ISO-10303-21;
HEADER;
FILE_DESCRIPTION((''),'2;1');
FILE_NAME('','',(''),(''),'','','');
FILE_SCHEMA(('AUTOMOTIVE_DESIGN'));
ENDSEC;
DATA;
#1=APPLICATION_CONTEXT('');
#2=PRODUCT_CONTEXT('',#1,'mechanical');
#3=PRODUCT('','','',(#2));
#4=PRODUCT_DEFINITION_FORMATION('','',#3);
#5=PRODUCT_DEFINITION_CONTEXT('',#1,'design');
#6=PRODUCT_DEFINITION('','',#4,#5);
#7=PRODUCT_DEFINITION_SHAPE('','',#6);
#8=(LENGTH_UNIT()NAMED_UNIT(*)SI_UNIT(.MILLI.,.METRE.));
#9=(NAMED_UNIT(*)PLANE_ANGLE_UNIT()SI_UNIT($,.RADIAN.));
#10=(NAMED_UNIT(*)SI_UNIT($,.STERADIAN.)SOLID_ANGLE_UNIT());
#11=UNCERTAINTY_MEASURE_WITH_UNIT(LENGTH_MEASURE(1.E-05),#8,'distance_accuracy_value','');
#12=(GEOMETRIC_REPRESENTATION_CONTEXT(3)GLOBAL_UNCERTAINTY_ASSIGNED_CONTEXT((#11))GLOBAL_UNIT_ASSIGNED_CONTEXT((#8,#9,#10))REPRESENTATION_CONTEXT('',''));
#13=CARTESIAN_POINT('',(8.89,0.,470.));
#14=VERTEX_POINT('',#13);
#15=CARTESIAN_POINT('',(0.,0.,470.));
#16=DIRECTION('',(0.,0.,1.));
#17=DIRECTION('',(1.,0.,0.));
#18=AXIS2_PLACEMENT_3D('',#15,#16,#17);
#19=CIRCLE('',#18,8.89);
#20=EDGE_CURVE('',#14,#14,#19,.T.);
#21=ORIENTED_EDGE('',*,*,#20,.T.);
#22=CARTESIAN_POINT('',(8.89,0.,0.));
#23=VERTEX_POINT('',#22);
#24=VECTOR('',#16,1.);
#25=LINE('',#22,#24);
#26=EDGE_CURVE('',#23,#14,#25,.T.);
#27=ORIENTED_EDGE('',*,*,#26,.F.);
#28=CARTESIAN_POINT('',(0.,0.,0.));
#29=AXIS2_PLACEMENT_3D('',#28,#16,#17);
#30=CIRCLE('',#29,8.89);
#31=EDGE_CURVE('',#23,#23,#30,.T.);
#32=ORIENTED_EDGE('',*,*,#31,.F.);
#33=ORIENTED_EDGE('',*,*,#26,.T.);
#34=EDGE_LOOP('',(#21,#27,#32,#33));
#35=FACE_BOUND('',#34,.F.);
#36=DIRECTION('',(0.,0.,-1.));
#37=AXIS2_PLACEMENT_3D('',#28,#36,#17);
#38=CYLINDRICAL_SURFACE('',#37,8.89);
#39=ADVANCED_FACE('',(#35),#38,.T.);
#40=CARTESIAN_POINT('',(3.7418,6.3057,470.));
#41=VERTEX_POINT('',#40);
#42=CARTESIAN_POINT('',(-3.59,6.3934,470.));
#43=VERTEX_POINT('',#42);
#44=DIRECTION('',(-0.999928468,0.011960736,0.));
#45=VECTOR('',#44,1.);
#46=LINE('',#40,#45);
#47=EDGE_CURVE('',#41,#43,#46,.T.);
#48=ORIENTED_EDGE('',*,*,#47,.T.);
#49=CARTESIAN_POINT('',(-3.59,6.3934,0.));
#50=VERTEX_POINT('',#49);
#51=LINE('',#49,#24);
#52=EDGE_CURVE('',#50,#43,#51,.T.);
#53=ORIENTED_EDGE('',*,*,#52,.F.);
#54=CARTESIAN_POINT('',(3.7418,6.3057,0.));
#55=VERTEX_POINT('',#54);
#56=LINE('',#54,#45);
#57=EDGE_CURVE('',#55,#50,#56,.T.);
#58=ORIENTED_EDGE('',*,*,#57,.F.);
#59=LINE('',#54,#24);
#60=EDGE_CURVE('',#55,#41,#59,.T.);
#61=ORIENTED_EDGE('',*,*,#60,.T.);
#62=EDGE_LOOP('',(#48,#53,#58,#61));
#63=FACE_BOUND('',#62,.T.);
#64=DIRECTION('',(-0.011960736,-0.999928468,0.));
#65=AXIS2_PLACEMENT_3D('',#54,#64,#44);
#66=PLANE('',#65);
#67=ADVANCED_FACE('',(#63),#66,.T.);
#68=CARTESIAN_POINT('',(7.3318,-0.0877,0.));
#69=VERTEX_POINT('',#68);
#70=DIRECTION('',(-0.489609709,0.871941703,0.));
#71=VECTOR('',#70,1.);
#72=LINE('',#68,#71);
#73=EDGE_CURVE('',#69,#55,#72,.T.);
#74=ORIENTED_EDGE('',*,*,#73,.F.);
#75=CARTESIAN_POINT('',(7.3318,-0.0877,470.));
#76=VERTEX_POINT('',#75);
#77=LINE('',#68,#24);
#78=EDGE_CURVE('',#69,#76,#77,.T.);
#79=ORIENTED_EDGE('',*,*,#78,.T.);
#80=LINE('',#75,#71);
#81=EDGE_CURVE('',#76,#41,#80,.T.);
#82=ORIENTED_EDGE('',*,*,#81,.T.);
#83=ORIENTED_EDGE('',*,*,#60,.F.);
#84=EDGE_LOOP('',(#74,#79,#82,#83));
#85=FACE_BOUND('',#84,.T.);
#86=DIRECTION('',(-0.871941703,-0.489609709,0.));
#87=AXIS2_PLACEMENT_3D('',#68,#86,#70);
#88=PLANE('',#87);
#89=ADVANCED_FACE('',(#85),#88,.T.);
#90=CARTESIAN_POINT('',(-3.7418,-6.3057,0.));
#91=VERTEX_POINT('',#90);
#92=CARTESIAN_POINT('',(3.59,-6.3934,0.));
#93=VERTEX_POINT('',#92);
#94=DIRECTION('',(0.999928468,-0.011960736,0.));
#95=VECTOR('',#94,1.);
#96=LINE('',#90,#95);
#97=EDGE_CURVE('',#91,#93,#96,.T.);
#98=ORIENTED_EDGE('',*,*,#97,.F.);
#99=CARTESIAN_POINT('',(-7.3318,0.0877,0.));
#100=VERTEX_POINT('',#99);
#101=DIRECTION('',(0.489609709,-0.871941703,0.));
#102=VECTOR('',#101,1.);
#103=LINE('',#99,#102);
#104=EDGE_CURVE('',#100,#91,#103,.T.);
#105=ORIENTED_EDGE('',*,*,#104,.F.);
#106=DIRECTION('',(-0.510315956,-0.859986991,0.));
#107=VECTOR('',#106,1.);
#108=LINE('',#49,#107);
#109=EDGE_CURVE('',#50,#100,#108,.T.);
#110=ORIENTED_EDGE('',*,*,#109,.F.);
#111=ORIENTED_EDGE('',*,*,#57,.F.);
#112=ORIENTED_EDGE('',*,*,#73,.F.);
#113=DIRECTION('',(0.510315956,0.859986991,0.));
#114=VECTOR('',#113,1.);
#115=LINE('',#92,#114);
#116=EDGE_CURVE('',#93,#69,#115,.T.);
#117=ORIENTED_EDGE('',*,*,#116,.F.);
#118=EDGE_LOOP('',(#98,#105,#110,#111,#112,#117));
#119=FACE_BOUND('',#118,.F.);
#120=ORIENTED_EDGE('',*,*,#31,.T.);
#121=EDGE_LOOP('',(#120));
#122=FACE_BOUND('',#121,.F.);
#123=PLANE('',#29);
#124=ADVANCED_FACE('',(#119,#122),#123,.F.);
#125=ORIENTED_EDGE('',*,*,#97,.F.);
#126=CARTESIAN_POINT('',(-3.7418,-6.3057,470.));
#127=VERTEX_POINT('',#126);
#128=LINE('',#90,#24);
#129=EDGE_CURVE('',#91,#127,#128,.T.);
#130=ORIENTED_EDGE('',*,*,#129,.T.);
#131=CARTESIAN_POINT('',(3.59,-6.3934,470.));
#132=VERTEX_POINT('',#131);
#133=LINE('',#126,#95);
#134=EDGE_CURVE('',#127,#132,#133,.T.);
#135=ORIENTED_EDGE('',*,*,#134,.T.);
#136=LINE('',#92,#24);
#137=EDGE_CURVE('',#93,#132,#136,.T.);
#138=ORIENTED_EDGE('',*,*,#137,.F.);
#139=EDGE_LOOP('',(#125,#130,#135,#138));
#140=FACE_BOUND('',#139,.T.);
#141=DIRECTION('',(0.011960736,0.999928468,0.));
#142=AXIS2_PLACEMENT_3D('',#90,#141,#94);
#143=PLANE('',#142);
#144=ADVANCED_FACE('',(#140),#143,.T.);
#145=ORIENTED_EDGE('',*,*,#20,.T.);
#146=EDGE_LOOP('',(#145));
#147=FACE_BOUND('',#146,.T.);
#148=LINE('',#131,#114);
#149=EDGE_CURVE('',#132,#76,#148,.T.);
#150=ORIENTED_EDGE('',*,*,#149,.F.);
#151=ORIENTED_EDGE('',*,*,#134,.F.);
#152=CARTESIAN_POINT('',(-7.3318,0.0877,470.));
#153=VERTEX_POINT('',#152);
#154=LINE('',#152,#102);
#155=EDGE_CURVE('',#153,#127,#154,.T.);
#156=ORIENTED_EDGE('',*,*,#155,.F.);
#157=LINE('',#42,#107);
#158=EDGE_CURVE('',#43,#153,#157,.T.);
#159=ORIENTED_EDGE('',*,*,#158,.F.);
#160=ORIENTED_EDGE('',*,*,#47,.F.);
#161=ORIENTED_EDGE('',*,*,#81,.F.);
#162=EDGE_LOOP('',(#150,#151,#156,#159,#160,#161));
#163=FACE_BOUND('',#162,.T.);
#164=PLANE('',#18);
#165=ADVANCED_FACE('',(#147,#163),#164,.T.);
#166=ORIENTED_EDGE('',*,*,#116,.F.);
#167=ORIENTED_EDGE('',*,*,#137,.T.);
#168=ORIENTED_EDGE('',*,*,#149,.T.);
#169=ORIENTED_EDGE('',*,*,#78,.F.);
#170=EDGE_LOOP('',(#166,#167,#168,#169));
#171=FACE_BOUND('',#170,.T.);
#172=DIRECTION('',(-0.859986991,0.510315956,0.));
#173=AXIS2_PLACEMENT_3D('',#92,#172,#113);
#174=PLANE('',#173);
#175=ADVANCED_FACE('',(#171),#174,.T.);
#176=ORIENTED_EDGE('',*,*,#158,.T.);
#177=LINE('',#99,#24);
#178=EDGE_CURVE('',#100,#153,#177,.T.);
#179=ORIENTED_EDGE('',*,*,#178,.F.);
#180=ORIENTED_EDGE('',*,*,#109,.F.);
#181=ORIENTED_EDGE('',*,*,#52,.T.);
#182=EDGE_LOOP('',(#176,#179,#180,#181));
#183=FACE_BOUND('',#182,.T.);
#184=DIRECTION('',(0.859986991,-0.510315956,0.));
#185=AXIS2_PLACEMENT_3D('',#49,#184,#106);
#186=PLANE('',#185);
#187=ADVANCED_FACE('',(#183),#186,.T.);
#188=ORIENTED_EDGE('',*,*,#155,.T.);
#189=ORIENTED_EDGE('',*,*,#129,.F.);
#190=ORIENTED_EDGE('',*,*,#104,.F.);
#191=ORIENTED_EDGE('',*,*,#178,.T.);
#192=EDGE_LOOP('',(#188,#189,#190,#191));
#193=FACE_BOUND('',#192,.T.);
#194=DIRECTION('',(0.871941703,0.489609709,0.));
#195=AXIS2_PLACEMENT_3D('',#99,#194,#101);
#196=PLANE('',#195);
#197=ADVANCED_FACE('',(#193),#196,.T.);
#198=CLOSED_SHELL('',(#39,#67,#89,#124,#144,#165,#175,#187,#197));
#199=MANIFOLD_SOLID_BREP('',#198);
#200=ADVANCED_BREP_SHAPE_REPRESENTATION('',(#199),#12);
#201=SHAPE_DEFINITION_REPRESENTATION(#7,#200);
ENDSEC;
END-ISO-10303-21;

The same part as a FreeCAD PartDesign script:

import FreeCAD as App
import Part
import Sketcher


def add_polygon(sketch, points):
    """Adds a closed chain of lines whose ends are joined by coincident constraints."""
    first, n = sketch.GeometryCount, len(points)
    for a, b in zip(points, points[1:] + points[:1]):
        sketch.addGeometry(Part.LineSegment(App.Vector(*a, 0), App.Vector(*b, 0)), False)
    for i in range(n):
        sketch.addConstraint(Sketcher.Constraint("Coincident", first + i, 2, first + (i + 1) % n, 1))

doc = App.newDocument("Part")
params = doc.addObject("Spreadsheet::Sheet", "Params")
for row, (alias, value) in enumerate([
    ("sketch1_diameter", "17.78 mm"),
    ("pad1_length", "470 mm"),
], start=1):
    params.set(f"A{row}", alias)
    params.set(f"B{row}", "=" + value)
    params.setAlias(f"B{row}", alias)

body = doc.addObject("PartDesign::Body", "Body")

# Sketch on XY plane
sketch1 = body.newObject("Sketcher::SketchObject", "Sketch")
sketch1.AttachmentSupport = (doc.getObject("XY_Plane"), [""])
sketch1.MapMode = "FlatFace"
sketch1.addGeometry(Part.Circle(App.Vector(0, 0, 0), App.Vector(0, 0, 1), 8.89), False)  # 0
add_polygon(sketch1, [(3.7418, 6.3057), (7.3318, -0.0877), (3.59, -6.3934), (-3.7418, -6.3057), (-7.3318, 0.0877), (-3.59, 6.3934)])  # lines 1-6
sketch1.addConstraint(Sketcher.Constraint("Coincident", 0, 3, -1, 1))
sketch1.addConstraint(Sketcher.Constraint("Symmetric", 1, 2, 4, 2, -1, 1))
sketch1.addConstraint(Sketcher.Constraint("Symmetric", 2, 2, 5, 2, -1, 1))
sketch1.addConstraint(Sketcher.Constraint("Symmetric", 3, 2, 6, 2, -1, 1))
sketch1.addConstraint(Sketcher.Constraint("Equal", 1, 2))
sketch1.addConstraint(Sketcher.Constraint("Equal", 2, 3))
sketch1.addConstraint(Sketcher.Constraint("Diameter", 0, 17.78))
sketch1.addConstraint(Sketcher.Constraint("DistanceX", -1, 1, 2, 2, 3.59))
sketch1.addConstraint(Sketcher.Constraint("DistanceX", 4, 2, 3, 2, 3.59))
sketch1.addConstraint(Sketcher.Constraint("DistanceY", 3, 2, 1, 2, 6.218))
sketch1.addConstraint(Sketcher.Constraint("DistanceY", 2, 2, 4, 2, 6.481))
sketch1.setExpression("Constraints[12]", "Params.sketch1_diameter")
pad1 = body.newObject("PartDesign::Pad", "Pad")
pad1.Profile = sketch1
pad1.setExpression("Length", "Params.pad1_length")

doc.recompute()
